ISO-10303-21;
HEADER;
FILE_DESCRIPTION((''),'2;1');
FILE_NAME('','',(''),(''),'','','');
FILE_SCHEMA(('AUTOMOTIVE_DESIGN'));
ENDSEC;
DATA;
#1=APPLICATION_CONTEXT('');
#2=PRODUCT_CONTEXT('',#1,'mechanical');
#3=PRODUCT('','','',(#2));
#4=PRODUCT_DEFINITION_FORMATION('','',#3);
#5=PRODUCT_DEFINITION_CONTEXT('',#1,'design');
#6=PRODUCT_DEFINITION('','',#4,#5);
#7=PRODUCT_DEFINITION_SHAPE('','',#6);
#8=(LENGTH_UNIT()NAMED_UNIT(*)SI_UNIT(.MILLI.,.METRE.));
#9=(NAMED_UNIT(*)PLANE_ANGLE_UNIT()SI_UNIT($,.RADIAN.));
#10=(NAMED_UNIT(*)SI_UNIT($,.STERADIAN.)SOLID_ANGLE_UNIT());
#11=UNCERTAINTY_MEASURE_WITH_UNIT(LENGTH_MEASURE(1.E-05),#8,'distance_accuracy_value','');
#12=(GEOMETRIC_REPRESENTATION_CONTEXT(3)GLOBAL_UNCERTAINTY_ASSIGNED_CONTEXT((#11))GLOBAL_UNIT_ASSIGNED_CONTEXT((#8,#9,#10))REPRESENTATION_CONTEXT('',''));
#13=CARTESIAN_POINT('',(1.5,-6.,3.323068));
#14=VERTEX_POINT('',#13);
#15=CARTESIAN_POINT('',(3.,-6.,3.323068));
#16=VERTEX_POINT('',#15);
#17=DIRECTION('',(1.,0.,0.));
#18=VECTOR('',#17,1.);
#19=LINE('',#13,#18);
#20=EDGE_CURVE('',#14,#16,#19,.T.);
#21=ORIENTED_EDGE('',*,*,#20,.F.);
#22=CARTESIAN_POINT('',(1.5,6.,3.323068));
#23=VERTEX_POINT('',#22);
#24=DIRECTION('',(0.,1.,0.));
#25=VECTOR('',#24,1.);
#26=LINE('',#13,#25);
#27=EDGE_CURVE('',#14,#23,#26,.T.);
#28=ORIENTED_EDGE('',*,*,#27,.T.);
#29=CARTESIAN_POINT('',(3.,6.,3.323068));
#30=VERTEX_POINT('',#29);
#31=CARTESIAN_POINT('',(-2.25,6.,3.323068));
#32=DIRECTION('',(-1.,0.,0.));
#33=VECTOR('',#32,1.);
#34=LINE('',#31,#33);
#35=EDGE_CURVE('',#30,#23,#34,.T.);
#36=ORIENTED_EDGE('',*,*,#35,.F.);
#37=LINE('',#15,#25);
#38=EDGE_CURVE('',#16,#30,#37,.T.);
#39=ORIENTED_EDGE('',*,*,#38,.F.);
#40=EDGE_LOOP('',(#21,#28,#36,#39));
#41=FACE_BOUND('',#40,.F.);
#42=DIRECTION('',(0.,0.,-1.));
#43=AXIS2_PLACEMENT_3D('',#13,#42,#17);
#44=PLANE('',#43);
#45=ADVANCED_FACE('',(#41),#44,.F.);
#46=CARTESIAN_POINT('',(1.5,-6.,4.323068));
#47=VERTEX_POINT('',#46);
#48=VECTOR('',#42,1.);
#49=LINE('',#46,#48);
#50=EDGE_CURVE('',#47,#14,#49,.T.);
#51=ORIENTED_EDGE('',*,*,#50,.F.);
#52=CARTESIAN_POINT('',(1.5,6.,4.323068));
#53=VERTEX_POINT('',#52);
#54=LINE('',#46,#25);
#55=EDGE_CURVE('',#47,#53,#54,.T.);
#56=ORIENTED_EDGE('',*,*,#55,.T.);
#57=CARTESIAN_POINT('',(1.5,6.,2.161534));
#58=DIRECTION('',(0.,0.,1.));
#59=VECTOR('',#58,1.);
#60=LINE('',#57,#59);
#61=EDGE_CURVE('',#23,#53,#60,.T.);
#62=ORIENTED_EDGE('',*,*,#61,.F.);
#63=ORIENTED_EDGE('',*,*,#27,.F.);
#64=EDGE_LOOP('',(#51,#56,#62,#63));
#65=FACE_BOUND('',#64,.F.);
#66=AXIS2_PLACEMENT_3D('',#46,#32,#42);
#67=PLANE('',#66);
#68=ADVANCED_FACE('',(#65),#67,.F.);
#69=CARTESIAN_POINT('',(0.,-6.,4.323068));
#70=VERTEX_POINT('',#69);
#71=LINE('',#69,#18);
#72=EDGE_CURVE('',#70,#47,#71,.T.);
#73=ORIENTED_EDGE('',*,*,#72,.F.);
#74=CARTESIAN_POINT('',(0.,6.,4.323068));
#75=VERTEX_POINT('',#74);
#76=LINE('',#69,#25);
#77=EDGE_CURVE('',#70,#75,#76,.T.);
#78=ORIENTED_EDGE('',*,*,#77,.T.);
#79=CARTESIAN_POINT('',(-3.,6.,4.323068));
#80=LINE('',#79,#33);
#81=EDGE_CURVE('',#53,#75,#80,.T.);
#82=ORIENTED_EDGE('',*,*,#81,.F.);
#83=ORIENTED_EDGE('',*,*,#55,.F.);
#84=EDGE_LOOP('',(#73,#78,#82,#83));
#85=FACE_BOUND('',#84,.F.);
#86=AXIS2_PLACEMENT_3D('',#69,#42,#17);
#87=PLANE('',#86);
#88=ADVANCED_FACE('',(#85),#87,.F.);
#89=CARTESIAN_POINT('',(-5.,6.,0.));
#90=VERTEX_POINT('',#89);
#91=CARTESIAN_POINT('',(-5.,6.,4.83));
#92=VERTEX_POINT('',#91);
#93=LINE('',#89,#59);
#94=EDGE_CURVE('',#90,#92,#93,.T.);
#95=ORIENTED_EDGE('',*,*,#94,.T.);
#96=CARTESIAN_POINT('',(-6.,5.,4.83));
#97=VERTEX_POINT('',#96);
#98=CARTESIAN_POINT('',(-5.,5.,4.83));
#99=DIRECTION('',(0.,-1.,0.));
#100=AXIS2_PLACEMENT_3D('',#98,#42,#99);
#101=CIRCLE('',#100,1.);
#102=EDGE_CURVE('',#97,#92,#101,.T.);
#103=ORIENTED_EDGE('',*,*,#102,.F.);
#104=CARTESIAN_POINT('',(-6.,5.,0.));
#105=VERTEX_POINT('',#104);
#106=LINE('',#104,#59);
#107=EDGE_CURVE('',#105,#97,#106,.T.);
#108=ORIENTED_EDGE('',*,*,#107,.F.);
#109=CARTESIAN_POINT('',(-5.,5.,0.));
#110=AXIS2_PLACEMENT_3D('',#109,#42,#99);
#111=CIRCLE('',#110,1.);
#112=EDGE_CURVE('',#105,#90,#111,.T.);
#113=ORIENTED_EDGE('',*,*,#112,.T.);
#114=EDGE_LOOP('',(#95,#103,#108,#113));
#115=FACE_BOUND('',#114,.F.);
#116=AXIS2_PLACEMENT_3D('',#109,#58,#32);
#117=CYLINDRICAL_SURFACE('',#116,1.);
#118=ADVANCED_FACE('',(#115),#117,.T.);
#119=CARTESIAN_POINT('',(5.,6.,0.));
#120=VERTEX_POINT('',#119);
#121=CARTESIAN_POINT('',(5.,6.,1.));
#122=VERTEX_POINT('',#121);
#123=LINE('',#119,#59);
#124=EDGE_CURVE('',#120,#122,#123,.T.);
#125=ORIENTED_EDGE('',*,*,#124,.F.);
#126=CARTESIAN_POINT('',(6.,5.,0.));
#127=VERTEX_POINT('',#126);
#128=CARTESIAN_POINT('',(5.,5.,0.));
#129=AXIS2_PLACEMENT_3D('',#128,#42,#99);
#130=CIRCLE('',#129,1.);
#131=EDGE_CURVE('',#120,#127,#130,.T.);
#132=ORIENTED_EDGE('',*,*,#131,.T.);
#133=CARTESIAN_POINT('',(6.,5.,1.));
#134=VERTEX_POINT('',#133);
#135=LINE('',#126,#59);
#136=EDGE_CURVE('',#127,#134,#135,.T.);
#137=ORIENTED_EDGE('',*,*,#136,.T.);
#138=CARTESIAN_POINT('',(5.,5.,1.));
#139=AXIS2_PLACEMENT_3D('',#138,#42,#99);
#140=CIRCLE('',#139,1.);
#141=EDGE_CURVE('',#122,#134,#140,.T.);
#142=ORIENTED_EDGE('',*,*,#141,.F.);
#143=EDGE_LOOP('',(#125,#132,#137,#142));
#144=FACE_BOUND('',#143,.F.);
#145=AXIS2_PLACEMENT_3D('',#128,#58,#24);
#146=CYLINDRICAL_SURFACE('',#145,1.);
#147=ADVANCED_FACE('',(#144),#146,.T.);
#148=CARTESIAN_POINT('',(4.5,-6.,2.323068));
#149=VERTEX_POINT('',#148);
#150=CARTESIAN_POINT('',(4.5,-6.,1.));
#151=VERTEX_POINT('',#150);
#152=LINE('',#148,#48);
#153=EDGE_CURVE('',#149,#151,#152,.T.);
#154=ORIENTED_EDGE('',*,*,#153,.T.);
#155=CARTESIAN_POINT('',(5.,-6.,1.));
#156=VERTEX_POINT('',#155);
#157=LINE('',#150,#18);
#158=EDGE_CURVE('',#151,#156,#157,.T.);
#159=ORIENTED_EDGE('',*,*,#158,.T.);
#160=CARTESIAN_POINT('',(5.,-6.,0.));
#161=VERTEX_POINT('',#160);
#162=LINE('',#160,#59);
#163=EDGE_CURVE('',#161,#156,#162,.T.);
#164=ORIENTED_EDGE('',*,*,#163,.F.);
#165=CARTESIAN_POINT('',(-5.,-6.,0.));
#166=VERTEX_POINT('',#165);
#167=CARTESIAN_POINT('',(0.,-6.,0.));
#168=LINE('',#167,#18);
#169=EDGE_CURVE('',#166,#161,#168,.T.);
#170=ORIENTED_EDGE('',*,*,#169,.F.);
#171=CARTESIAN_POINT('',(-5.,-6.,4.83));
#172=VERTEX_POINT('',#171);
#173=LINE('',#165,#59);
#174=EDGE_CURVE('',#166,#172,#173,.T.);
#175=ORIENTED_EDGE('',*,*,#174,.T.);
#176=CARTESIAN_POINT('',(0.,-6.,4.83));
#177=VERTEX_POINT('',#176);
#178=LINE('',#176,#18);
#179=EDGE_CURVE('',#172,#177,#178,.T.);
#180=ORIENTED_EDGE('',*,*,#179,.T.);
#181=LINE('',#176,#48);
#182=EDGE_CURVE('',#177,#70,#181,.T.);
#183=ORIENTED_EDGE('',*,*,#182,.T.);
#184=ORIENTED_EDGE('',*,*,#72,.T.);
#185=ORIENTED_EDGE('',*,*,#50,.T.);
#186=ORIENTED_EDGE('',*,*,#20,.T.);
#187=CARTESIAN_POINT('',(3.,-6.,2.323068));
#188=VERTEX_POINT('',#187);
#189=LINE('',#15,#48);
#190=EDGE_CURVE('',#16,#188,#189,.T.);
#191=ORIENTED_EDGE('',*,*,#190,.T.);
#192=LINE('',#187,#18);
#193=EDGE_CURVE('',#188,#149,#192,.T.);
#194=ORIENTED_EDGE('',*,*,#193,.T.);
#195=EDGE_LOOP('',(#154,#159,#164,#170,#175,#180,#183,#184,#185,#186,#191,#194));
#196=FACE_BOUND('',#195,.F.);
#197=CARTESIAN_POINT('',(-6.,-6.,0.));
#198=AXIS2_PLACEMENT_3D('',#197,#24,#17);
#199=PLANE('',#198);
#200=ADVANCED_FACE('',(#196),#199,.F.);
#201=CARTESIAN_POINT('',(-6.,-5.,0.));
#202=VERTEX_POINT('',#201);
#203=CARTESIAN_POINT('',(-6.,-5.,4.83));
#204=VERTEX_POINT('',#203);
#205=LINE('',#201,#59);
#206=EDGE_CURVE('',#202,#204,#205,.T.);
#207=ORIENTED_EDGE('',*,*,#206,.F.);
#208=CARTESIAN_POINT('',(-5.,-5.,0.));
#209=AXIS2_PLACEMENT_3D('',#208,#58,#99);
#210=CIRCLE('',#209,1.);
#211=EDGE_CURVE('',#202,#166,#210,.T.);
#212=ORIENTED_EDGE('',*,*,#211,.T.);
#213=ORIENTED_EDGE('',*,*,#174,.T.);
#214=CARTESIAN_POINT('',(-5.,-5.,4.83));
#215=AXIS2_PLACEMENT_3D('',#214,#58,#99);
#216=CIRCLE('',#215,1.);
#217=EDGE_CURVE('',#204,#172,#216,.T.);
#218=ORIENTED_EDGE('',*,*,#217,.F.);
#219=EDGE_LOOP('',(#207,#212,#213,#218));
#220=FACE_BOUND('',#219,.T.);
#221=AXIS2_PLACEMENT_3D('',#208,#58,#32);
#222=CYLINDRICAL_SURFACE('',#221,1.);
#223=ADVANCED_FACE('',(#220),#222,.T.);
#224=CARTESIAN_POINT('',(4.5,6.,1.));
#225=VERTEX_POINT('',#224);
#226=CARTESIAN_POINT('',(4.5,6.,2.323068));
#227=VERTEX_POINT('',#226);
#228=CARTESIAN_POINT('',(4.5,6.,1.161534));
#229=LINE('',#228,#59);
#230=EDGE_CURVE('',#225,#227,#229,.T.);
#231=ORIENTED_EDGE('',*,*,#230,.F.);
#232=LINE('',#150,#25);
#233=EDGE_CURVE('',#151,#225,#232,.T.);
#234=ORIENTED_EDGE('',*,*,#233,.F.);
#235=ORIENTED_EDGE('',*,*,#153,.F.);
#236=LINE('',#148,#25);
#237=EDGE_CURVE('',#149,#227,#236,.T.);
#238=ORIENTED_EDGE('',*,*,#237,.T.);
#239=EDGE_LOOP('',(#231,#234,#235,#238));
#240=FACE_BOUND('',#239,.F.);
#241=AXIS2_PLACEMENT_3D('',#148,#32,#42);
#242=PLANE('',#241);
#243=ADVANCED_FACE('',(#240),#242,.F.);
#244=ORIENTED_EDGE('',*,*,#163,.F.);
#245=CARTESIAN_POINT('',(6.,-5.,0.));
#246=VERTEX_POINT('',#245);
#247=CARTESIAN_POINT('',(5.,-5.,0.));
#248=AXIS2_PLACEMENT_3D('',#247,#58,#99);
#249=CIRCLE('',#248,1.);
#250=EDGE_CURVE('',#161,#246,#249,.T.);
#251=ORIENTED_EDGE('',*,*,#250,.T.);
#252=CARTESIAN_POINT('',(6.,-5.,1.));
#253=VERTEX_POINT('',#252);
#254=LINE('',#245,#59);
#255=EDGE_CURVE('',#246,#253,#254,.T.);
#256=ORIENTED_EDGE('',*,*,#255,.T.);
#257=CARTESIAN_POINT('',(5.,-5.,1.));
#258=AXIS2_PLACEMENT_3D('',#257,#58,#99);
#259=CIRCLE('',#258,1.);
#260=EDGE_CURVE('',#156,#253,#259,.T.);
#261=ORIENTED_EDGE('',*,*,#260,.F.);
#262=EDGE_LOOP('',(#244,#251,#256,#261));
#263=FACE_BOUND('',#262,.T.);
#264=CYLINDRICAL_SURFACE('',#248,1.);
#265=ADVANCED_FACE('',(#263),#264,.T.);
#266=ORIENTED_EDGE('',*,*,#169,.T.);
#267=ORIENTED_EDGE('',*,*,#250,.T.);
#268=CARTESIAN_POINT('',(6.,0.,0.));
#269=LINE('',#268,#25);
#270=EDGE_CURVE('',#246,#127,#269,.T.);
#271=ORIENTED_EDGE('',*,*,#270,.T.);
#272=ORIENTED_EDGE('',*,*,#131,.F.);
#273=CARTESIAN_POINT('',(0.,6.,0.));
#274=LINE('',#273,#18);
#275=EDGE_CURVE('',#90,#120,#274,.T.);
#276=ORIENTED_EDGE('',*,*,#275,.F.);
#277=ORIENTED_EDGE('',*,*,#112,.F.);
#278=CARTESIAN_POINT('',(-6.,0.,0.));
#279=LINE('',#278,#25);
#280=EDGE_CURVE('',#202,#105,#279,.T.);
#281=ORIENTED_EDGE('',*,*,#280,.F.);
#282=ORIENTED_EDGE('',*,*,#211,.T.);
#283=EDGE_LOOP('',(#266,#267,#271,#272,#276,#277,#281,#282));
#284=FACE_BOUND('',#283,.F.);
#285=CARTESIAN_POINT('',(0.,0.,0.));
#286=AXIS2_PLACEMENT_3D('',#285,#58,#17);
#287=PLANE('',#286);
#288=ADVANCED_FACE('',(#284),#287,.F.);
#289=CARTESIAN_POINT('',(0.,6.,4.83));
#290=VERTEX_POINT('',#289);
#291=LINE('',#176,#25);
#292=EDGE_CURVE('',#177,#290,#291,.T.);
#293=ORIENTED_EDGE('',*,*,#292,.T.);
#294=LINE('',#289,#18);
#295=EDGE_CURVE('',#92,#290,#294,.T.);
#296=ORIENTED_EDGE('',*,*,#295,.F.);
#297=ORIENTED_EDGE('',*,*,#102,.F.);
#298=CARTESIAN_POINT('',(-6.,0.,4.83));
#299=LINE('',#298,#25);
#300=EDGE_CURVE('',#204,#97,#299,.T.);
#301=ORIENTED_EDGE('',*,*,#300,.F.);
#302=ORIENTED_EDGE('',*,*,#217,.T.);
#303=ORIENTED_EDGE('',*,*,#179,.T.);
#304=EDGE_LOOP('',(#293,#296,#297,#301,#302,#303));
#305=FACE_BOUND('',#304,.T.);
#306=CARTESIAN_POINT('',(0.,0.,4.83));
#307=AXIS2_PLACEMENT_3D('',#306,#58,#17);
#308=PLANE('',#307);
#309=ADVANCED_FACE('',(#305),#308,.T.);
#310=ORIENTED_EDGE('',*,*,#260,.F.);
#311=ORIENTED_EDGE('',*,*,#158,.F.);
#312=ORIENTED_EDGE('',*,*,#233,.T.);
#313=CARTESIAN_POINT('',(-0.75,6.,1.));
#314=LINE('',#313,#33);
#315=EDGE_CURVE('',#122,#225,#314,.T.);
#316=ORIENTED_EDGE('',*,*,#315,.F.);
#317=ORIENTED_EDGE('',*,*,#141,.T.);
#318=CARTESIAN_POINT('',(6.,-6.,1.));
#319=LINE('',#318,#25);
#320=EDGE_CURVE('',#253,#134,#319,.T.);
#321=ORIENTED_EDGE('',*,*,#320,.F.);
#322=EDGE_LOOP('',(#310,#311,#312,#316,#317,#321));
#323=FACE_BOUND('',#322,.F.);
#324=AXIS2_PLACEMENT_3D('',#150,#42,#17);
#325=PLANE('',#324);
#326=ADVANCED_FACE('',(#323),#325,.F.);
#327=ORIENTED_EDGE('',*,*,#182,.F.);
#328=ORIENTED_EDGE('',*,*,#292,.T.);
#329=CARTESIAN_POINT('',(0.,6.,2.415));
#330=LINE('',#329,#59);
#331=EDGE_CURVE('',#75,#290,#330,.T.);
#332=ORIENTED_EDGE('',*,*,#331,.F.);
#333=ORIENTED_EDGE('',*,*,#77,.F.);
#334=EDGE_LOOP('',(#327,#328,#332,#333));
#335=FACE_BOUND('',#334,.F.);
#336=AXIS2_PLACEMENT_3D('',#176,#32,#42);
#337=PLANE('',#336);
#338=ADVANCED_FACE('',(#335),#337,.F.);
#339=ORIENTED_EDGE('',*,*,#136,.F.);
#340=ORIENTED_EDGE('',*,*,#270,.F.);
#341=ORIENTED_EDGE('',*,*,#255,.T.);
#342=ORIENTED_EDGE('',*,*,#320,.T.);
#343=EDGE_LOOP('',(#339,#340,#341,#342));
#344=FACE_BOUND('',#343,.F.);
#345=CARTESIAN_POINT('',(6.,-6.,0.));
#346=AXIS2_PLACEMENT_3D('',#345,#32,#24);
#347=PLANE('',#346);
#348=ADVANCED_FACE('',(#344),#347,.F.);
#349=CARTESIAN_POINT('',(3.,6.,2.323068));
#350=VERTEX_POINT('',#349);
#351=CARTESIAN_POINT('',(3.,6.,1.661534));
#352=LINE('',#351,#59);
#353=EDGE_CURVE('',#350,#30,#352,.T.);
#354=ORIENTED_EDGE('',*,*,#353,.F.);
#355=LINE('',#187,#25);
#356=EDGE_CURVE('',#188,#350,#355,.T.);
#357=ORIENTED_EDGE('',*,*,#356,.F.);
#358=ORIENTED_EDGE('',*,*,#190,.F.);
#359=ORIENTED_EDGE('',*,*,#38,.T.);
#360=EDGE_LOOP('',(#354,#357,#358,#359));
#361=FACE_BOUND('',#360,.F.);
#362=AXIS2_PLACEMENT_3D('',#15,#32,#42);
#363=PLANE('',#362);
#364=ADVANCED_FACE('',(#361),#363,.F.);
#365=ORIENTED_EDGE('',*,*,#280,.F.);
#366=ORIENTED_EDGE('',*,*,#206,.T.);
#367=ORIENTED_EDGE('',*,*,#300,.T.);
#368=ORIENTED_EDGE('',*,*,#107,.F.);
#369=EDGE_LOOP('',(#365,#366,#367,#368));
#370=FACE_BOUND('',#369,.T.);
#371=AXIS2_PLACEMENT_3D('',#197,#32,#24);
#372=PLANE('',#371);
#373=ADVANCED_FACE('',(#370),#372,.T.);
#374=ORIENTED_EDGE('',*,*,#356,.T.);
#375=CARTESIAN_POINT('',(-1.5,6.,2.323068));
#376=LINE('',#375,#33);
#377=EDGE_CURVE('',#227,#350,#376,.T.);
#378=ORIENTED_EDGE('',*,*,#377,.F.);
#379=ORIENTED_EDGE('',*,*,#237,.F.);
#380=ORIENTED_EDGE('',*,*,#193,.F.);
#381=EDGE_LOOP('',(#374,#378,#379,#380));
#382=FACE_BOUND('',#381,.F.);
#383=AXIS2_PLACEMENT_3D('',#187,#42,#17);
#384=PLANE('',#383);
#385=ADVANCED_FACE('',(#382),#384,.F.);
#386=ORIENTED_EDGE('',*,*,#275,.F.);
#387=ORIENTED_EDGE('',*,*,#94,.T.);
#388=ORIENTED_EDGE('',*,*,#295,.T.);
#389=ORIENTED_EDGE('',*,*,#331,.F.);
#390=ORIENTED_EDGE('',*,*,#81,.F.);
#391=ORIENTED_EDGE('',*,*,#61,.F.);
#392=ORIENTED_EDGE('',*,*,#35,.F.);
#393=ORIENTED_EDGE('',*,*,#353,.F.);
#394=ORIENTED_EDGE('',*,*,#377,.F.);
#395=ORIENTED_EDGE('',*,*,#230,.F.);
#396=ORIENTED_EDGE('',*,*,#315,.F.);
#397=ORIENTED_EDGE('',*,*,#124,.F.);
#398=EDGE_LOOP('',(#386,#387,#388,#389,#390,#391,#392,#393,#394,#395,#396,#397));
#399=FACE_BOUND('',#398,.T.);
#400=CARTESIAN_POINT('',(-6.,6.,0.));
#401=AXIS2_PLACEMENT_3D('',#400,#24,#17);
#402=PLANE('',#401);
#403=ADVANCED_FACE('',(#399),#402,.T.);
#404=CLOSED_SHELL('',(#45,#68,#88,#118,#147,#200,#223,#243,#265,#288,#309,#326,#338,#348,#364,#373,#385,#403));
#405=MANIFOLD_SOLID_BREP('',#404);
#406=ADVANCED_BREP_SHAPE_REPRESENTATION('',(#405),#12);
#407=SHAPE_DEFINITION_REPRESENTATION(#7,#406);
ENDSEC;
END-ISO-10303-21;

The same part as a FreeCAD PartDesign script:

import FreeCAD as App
import Part
import Sketcher
from FreeCAD import Vector


def edges_at(feature, points):
    """Names of the edges that pass closest to the given points."""
    edges = feature.Shape.Edges
    near = lambda p: min(range(len(edges)), key=lambda i: edges[i].distToShape(Part.Vertex(*p))[0])
    return sorted({f"Edge{near(p) + 1}" for p in points})


def add_polygon(sketch, points):
    """Adds a closed chain of lines whose ends are joined by coincident constraints."""
    first, n = sketch.GeometryCount, len(points)
    for a, b in zip(points, points[1:] + points[:1]):
        sketch.addGeometry(Part.LineSegment(App.Vector(*a, 0), App.Vector(*b, 0)), False)
    for i in range(n):
        sketch.addConstraint(Sketcher.Constraint("Coincident", first + i, 2, first + (i + 1) % n, 1))

doc = App.newDocument("Part")
body = doc.addObject("PartDesign::Body", "Body")

sketch1 = body.newObject("Sketcher::SketchObject", "Sketch")
sketch1.AttachmentSupport = (doc.getObject("XY_Plane"), [""])
sketch1.MapMode = "FlatFace"
add_polygon(sketch1, [(-6, 6), (-6, -6), (6, -6), (6, 6)])
sketch1.addConstraint([
    Sketcher.Constraint("Vertical", 0),
    Sketcher.Constraint("Horizontal", 1),
    Sketcher.Constraint("Vertical", 2),
    Sketcher.Constraint("Horizontal", 3),
    Sketcher.Constraint("Symmetric", 0, 2, 2, 2, -1, 1),
    Sketcher.Constraint("Equal", 3, 0),
    Sketcher.Constraint("DistanceX", 1, 1, 1, 2, 12.0),
])
pad1 = body.newObject("PartDesign::Pad", "Pad")
pad1.Profile = sketch1
pad1.Length = 4.83

sketch2 = body.newObject("Sketcher::SketchObject", "Sketch001")
sketch2.AttachmentSupport = (doc.getObject("XZ_Plane"), [""])
sketch2.MapMode = "FlatFace"
sketch2.AttachmentOffset = App.Placement(Vector(0, 0, 6), App.Rotation())
add_polygon(sketch2, [(4.5, 2.3), (4.5, 1), (6, 1), (6, 4.8), (0, 4.8), (0, 4.3), (1.5, 4.3), (1.5, 3.3), (3, 3.3), (3, 2.3)])
sketch2.addConstraint([
    Sketcher.Constraint("Vertical", 0),
    Sketcher.Constraint("Horizontal", 1),
    Sketcher.Constraint("Vertical", 2),
    Sketcher.Constraint("Horizontal", 3),
    Sketcher.Constraint("Vertical", 4),
    Sketcher.Constraint("Horizontal", 5),
    Sketcher.Constraint("Vertical", 6),
    Sketcher.Constraint("Horizontal", 7),
    Sketcher.Constraint("Vertical", 8),
    Sketcher.Constraint("Horizontal", 9),
    Sketcher.Constraint("PointOnObject", 3, 2, -2),
    Sketcher.Constraint("Equal", 1, 5),
    Sketcher.Constraint("Equal", 5, 7),
    Sketcher.Constraint("Equal", 7, 9),
    Sketcher.Constraint("Equal", 6, 8),
    Sketcher.Constraint("DistanceX", 3, 2, 3, 1, 6.0),
    Sketcher.Constraint("DistanceY", 6, 2, 6, 1, 1.0),
    Sketcher.Constraint("DistanceY", -1, 1, 0, 2, 1.0),
    Sketcher.Constraint("DistanceY", 2, 1, 2, 2, 3.83),
    Sketcher.Constraint("DistanceY", 0, 2, 0, 1, 1.323068),
])
pocket1 = body.newObject("PartDesign::Pocket", "Pocket")
pocket1.Profile = sketch2
pocket1.Length = 25
doc.recompute()

fillet = body.newObject("PartDesign::Fillet", "Fillet")
fillet.Base = (pocket1, edges_at(pocket1, [
    (-6, -6, 2.415),
    (-6, 6, 2.415),
    (6, -6, 0.5),
    (6, 6, 0.5),
]))
fillet.Radius = 1

doc.recompute()
